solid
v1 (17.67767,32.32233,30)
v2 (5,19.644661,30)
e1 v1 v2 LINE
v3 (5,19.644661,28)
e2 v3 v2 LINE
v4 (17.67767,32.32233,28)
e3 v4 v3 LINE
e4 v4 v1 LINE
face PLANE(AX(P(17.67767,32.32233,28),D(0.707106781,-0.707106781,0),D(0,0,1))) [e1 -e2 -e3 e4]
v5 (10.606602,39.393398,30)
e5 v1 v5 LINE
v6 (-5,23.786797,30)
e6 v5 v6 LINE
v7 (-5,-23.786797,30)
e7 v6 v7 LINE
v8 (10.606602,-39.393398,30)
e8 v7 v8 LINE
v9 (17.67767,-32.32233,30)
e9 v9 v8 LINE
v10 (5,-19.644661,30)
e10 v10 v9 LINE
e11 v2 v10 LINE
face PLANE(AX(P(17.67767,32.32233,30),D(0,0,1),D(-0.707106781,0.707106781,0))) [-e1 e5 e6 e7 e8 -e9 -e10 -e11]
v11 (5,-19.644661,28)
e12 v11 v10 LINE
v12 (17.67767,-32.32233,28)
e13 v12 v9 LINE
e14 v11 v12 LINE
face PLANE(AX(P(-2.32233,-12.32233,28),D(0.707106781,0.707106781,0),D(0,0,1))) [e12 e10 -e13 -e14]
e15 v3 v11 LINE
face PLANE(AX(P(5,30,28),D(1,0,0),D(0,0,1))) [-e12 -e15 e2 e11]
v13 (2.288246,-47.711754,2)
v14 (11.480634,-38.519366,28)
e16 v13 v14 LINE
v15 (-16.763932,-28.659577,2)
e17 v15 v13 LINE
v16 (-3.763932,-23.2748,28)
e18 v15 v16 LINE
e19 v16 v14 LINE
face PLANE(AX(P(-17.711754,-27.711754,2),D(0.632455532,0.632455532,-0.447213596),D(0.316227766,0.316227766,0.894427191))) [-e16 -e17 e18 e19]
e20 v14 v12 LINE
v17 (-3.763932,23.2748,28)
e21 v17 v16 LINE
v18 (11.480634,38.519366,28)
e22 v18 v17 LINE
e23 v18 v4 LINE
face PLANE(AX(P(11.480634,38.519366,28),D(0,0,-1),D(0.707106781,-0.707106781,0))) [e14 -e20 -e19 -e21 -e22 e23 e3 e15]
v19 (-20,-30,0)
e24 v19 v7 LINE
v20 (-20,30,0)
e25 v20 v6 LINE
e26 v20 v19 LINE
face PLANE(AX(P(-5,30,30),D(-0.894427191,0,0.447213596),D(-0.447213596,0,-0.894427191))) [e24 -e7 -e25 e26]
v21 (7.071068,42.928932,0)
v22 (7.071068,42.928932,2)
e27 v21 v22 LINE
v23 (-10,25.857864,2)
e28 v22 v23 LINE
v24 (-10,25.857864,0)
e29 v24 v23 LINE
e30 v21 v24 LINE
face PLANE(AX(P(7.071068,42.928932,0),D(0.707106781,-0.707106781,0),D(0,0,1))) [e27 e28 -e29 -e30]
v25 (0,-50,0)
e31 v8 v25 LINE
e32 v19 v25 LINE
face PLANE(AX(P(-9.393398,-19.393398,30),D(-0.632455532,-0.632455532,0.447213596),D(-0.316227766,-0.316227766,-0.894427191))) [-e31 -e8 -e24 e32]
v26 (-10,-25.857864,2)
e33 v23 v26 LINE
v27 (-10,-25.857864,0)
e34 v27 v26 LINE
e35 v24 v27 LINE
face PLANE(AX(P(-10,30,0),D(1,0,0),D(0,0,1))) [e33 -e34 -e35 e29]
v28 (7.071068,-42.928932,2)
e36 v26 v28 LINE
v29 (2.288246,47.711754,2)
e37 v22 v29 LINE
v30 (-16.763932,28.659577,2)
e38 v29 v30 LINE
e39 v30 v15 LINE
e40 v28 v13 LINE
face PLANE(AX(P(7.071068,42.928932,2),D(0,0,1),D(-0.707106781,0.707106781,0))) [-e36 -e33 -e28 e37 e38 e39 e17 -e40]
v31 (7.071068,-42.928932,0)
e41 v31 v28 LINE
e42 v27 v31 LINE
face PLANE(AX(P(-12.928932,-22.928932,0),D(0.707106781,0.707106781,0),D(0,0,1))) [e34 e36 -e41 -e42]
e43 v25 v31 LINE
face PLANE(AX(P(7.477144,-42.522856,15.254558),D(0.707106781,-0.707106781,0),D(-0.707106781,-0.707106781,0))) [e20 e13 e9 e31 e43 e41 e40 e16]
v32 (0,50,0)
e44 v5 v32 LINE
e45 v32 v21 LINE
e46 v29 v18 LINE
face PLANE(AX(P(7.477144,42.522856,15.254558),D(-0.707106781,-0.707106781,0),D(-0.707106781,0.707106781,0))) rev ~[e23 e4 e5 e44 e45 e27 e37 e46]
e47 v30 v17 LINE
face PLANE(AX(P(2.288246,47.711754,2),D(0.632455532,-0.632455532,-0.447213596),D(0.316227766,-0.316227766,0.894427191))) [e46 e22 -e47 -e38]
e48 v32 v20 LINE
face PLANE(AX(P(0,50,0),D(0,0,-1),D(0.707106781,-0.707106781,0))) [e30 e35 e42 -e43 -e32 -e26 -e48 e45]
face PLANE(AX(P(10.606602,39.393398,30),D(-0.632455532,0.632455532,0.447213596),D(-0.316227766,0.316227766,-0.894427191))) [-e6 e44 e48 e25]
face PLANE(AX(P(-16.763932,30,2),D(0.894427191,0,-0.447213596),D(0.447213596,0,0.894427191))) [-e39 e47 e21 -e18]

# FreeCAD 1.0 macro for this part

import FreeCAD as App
import Part
import Sketcher


def add_polygon(sketch, points):
    """Adds a closed chain of lines whose ends are joined by coincident constraints."""
    first, n = sketch.GeometryCount, len(points)
    for a, b in zip(points, points[1:] + points[:1]):
        sketch.addGeometry(Part.LineSegment(App.Vector(*a, 0), App.Vector(*b, 0)), False)
    for i in range(n):
        sketch.addConstraint(Sketcher.Constraint("Coincident", first + i, 2, first + (i + 1) % n, 1))

doc = App.newDocument("Part")
body = doc.addObject("PartDesign::Body", "Body")

# Sketch on XZ plane
sketch1 = body.newObject("Sketcher::SketchObject", "Sketch")
sketch1.AttachmentSupport = (doc.getObject("XZ_Plane"), [""])
sketch1.MapMode = "FlatFace"
add_polygon(sketch1, [(-20, 0), (-10, 0), (-10, 2), (-16.763932, 2), (-3.763932, 28), (5, 28), (5, 30), (-5, 30)])  # lines 0-7
sketch1.addConstraint(Sketcher.Constraint("Horizontal", 0))
sketch1.addConstraint(Sketcher.Constraint("Vertical", 1))
sketch1.addConstraint(Sketcher.Constraint("Horizontal", 2))
sketch1.addConstraint(Sketcher.Constraint("Horizontal", 4))
sketch1.addConstraint(Sketcher.Constraint("Vertical", 5))
sketch1.addConstraint(Sketcher.Constraint("Horizontal", 6))
sketch1.addConstraint(Sketcher.Constraint("PointOnObject", 0, 2, -1))
sketch1.addConstraint(Sketcher.Constraint("Parallel", 3, 7))
sketch1.addConstraint(Sketcher.Constraint("Equal", 0, 6))
sketch1.addConstraint(Sketcher.Constraint("Equal", 1, 5))
sketch1.addConstraint(Sketcher.Constraint("DistanceX", 0, 1, 0, 2, 10.0))
sketch1.addConstraint(Sketcher.Constraint("DistanceY", 1, 1, 1, 2, 2.0))
sketch1.addConstraint(Sketcher.Constraint("DistanceX", 0, 2, -1, 1, 10.0))
sketch1.addConstraint(Sketcher.Constraint("DistanceY", -1, 1, 3, 2, 28.0))
sketch1.addConstraint(Sketcher.Constraint("DistanceX", -1, 1, 4, 2, 5.0))
sketch1.addConstraint(Sketcher.Constraint("DistanceX", 2, 2, 2, 1, 6.763932))

# Sketch on XY plane
sketch2 = body.newObject("Sketcher::SketchObject", "Sketch001")
sketch2.AttachmentSupport = (doc.getObject("XY_Plane"), [""])
sketch2.MapMode = "FlatFace"
sketch2.addGeometry(Part.LineSegment(App.Vector(0, 50, 0), App.Vector(-20, 30, 0)), False)
sketch2.addGeometry(Part.LineSegment(App.Vector(-20, 30, 0), App.Vector(-20, -30, 0)), False)
sketch2.addGeometry(Part.LineSegment(App.Vector(-20, -30, 0), App.Vector(0, -50, 0)), False)
sketch2.addConstraint(Sketcher.Constraint("Coincident", 0, 2, 1, 1))
sketch2.addConstraint(Sketcher.Constraint("Coincident", 1, 2, 2, 1))
sketch2.addConstraint(Sketcher.Constraint("Vertical", 1))
sketch2.addConstraint(Sketcher.Constraint("Symmetric", 0, 1, 2, 2, -1, 1))
sketch2.addConstraint(Sketcher.Constraint("PointOnObject", 0, 1, -2))
sketch2.addConstraint(Sketcher.Constraint("Perpendicular", 0, 2))
sketch2.addConstraint(Sketcher.Constraint("Equal", 0, 2))
sketch2.addConstraint(Sketcher.Constraint("DistanceY", 1, 2, 1, 1, 60.0))
sketch2.addConstraint(Sketcher.Constraint("DistanceY", -1, 1, 0, 1, 50.0))
doc.recompute()

additivepipe = body.newObject("PartDesign::AdditivePipe", "AdditivePipe")
additivepipe.Profile = sketch1
additivepipe.Spine = (sketch2, ["Edge1", "Edge2", "Edge3"])
additivepipe.Transition = "Right corner"

doc.recompute()
